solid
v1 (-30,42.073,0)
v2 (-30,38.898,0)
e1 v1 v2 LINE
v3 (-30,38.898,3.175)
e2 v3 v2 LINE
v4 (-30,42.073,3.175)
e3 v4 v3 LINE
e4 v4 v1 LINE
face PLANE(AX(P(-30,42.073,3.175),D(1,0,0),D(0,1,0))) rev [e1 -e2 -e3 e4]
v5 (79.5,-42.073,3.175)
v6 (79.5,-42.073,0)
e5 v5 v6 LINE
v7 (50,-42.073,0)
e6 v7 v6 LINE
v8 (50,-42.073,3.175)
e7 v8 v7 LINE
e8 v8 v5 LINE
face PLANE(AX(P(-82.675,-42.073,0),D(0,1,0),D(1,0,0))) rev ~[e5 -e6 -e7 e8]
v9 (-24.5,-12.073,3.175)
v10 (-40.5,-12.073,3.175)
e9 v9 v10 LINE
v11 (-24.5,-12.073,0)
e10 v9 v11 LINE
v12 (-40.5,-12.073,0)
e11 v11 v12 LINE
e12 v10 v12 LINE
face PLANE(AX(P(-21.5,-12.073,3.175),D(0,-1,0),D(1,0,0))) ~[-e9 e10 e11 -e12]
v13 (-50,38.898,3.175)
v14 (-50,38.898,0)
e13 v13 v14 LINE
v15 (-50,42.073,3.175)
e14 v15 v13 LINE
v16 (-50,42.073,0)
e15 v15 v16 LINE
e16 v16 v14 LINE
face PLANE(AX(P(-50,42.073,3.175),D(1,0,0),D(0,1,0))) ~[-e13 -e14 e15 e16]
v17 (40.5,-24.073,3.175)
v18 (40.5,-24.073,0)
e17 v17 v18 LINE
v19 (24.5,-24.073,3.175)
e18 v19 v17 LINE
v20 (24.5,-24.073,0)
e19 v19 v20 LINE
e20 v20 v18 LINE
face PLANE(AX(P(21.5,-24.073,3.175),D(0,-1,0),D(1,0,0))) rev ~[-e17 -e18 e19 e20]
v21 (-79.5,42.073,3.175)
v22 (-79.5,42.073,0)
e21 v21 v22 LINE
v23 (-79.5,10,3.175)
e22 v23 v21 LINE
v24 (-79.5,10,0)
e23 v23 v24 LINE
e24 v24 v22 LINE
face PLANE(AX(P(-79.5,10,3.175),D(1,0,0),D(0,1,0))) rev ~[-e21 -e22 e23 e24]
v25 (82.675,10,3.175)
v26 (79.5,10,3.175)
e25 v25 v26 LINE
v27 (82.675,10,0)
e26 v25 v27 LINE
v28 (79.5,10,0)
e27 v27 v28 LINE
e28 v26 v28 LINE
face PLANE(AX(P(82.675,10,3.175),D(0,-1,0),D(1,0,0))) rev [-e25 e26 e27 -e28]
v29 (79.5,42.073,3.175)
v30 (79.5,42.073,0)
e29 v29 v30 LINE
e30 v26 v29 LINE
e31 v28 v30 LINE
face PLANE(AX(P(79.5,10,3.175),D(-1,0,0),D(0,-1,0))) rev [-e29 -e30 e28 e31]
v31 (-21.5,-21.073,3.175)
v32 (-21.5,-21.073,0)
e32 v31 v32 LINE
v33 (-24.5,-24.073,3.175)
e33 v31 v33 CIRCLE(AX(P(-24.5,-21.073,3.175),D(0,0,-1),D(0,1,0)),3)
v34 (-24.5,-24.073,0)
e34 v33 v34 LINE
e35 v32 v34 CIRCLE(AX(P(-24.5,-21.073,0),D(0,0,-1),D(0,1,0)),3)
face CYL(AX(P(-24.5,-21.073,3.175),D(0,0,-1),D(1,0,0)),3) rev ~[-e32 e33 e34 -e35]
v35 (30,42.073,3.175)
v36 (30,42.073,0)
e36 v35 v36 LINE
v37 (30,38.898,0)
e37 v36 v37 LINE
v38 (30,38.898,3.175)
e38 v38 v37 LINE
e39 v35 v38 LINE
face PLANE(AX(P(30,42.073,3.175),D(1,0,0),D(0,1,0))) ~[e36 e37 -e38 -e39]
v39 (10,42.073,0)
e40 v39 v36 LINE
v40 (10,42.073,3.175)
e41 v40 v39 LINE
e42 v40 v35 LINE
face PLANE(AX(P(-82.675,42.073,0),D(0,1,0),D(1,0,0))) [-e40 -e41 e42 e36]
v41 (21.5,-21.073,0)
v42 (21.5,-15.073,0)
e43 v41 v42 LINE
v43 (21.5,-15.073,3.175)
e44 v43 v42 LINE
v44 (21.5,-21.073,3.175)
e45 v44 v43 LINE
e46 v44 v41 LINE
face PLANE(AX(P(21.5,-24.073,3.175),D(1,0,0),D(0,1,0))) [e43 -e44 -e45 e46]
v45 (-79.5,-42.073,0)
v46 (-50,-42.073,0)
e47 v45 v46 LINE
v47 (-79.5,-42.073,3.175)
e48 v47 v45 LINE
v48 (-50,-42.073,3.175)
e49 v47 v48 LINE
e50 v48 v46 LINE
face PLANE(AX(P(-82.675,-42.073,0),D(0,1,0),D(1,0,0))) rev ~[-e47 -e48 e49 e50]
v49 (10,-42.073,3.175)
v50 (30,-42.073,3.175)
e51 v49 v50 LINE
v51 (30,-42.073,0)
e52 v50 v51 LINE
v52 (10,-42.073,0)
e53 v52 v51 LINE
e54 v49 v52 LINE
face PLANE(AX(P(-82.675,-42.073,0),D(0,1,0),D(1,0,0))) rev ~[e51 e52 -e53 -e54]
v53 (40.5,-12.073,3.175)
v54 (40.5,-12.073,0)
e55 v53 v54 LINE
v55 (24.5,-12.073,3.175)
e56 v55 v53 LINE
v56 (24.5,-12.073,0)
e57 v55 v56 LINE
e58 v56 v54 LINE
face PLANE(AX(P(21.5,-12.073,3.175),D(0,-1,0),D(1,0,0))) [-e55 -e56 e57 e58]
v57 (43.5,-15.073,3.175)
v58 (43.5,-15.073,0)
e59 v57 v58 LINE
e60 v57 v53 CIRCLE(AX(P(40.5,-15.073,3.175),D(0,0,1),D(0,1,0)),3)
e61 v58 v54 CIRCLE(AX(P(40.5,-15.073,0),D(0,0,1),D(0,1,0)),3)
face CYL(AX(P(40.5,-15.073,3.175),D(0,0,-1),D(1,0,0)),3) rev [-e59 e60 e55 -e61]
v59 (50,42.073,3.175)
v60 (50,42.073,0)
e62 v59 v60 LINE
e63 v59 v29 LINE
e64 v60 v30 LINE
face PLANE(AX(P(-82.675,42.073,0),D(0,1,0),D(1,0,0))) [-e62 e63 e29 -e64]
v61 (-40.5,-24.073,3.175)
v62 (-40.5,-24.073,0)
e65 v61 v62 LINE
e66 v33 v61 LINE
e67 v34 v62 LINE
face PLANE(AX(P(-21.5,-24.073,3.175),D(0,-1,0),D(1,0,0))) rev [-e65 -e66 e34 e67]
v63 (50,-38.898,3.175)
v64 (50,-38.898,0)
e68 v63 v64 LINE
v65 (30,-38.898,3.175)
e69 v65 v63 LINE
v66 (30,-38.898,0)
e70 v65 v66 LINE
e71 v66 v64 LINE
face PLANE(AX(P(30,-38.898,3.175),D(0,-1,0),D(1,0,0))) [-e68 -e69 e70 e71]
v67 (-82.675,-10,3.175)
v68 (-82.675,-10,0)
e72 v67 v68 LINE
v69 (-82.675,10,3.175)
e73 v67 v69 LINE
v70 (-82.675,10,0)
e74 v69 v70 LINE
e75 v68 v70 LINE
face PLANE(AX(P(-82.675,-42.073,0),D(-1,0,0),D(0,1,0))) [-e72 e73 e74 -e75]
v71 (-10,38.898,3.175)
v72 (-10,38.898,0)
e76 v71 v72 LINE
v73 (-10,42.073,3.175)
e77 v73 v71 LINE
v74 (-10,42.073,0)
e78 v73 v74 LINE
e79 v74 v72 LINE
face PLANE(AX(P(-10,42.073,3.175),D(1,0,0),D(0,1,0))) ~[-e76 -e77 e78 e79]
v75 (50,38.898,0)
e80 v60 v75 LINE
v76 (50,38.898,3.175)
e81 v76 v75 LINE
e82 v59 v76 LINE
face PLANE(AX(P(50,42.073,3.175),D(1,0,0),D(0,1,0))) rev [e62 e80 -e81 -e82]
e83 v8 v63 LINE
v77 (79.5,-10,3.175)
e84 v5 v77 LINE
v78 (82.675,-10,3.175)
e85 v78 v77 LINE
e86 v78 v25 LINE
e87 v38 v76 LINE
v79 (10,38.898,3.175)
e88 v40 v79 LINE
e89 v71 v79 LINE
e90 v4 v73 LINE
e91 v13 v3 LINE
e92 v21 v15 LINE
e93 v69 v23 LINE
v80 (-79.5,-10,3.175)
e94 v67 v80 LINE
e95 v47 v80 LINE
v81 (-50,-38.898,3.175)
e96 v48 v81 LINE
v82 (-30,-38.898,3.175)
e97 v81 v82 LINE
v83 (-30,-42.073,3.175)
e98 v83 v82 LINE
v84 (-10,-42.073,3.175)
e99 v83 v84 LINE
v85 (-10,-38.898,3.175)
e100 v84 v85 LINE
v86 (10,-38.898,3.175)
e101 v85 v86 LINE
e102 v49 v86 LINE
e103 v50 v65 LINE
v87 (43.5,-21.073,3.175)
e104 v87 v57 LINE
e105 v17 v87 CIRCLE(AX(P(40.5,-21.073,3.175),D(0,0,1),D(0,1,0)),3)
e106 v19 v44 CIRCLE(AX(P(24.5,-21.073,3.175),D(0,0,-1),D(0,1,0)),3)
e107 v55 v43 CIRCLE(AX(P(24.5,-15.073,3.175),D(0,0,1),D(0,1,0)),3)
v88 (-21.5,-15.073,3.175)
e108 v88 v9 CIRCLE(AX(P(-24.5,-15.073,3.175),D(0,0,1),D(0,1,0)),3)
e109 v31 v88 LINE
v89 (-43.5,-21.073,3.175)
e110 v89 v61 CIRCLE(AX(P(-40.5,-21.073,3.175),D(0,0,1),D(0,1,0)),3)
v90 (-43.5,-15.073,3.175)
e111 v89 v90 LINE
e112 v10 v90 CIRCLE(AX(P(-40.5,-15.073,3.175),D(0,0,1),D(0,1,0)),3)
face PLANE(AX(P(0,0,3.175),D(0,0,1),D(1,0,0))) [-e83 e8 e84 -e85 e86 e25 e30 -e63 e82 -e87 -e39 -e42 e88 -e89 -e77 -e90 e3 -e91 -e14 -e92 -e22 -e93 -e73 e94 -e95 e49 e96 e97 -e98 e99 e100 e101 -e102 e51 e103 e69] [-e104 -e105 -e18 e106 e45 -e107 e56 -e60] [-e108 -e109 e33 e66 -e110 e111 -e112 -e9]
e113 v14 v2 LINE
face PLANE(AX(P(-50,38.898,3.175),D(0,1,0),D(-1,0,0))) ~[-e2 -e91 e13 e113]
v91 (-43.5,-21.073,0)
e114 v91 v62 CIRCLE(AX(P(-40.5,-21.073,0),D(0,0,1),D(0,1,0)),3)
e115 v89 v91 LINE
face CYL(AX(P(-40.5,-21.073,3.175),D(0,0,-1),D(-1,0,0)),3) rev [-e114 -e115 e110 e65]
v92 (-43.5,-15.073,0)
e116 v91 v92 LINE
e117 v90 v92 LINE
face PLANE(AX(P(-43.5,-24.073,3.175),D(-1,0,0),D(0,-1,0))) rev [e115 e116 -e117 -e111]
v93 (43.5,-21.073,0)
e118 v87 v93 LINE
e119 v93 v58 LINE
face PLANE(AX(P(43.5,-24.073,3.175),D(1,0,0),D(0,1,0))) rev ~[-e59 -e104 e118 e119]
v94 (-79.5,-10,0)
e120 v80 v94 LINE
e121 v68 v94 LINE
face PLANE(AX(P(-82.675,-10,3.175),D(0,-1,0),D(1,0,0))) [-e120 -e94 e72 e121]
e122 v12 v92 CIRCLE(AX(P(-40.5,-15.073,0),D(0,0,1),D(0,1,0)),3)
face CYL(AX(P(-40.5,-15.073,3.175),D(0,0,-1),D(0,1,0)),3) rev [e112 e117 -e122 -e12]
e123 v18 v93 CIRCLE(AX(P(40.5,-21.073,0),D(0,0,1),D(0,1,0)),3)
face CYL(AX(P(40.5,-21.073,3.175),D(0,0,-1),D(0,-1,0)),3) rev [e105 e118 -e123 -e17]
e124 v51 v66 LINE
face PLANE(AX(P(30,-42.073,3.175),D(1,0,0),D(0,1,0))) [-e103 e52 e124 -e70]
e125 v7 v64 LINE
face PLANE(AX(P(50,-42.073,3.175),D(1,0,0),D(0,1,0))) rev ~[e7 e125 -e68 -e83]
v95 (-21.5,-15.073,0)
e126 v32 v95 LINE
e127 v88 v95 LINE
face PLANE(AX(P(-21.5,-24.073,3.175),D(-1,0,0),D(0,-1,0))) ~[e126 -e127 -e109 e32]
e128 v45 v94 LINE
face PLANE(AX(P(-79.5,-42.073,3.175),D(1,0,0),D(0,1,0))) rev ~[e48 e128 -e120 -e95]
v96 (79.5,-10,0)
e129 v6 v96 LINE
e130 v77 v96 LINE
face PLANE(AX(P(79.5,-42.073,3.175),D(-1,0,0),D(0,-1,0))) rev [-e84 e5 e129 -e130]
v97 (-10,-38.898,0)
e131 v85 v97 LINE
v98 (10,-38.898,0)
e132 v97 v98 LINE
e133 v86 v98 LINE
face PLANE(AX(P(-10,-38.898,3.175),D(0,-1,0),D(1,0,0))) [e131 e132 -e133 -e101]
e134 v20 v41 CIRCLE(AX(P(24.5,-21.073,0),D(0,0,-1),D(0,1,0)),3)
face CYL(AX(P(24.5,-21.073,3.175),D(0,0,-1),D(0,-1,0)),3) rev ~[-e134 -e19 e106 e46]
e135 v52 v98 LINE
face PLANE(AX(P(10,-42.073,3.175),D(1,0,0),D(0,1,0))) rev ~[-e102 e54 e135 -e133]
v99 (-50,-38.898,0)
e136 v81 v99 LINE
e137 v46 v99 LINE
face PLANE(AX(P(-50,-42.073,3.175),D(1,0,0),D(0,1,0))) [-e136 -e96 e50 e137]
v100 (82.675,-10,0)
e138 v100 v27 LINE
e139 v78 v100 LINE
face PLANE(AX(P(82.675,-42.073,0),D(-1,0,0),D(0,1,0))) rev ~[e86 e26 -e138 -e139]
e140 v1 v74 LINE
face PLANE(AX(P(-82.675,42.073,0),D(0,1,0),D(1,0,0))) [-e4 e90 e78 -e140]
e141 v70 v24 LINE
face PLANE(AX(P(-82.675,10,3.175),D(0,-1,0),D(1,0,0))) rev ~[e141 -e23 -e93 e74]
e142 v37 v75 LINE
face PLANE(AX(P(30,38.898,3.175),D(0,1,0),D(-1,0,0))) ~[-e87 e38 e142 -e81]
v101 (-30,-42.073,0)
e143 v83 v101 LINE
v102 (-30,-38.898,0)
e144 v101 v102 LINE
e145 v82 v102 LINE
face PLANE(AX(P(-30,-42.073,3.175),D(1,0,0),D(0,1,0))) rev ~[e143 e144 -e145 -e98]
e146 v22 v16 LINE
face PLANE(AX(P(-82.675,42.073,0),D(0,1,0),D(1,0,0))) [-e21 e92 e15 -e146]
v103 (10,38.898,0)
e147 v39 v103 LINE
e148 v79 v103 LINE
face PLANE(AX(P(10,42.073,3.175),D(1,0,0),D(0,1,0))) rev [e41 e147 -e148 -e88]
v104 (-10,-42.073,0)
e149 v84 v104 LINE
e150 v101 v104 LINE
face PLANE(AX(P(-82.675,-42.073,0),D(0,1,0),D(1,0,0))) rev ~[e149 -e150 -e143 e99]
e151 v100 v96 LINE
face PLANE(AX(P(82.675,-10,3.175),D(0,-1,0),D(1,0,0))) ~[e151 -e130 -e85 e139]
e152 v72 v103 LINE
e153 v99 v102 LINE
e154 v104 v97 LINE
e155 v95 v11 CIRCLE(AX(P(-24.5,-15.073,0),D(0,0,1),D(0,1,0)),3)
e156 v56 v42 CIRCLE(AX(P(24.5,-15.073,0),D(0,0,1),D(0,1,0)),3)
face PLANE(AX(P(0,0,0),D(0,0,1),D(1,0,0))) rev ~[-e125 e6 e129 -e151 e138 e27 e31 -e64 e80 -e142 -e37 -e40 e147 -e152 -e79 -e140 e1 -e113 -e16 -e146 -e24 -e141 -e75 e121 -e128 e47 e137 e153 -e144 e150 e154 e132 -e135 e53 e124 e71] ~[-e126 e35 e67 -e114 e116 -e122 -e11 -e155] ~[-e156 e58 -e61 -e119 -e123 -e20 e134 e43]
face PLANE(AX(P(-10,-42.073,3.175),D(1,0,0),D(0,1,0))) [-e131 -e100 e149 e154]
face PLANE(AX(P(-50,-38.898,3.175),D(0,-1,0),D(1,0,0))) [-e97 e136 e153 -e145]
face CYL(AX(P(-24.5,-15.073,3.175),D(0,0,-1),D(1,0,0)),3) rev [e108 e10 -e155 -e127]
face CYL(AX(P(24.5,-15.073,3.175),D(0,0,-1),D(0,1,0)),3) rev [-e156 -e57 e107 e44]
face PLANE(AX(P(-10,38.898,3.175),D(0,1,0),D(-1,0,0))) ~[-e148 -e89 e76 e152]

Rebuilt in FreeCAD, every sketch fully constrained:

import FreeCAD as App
import Part
import Sketcher

V = App.Vector
Q = App.Units.Quantity


def edges_at(feature, points):
    """Names of the edges that pass closest to the given points."""
    edges = feature.Shape.Edges
    near = lambda p: min(range(len(edges)), key=lambda i: edges[i].distToShape(Part.Vertex(*p))[0])
    return sorted({f"Edge{near(p) + 1}" for p in points})


def add_polygon(sketch, points):
    """Adds a closed chain of lines whose ends are joined by coincident constraints."""
    first, n = sketch.GeometryCount, len(points)
    for a, b in zip(points, points[1:] + points[:1]):
        sketch.addGeometry(Part.LineSegment(App.Vector(*a, 0), App.Vector(*b, 0)), False)
    for i in range(n):
        sketch.addConstraint(Sketcher.Constraint("Coincident", first + i, 2, first + (i + 1) % n, 1))

doc = App.newDocument("Part")
body = doc.addObject("PartDesign::Body", "Body")

# Sketch on XY plane
sketch1 = body.newObject("Sketcher::SketchObject", "Sketch")
sketch1.AttachmentSupport = (doc.getObject("XY_Plane"), [""])
sketch1.MapMode = "FlatFace"
add_polygon(sketch1, [(-83, 42), (-83, -42), (83, -42), (83, 42)])  # lines 0-3
sketch1.addConstraint([
    Sketcher.Constraint("Vertical", 0),
    Sketcher.Constraint("Horizontal", 1),
    Sketcher.Constraint("Vertical", 2),
    Sketcher.Constraint("Horizontal", 3),
    Sketcher.Constraint("Symmetric", 0, 2, 2, 2, -1, 1),
    Sketcher.Constraint("DistanceX", 1, 1, 1, 2, Q("165.35 mm")),
    Sketcher.Constraint("DistanceY", 0, 2, 0, 1, Q("84.146 mm")),
])
pad1 = body.newObject("PartDesign::Pad", "Pad")
pad1.Profile = sketch1
pad1.Length = 3.175

# Sketch on XY plane
sketch2 = body.newObject("Sketcher::SketchObject", "Sketch001")
sketch2.AttachmentSupport = (doc.getObject("XY_Plane"), [""])
sketch2.MapMode = "FlatFace"
sketch2.AttachmentOffset = App.Placement(V(0, 0, 3.175), App.Rotation())
add_polygon(sketch2, [(-82.7, -10), (-82.7, -42.1), (-79.5, -42.1), (-79.5, -10)])  # lines 0-3
add_polygon(sketch2, [(-82.7, 42.1), (-82.7, 10), (-79.5, 10), (-79.5, 42.1)])  # lines 4-7
sketch2.addConstraint([
    Sketcher.Constraint("Vertical", 0),
    Sketcher.Constraint("Horizontal", 1),
    Sketcher.Constraint("Vertical", 2),
    Sketcher.Constraint("Horizontal", 3),
    Sketcher.Constraint("Vertical", 4),
    Sketcher.Constraint("Horizontal", 5),
    Sketcher.Constraint("Vertical", 6),
    Sketcher.Constraint("Horizontal", 7),
    Sketcher.Constraint("Symmetric", 3, 2, 4, 2, -1),
    Sketcher.Constraint("Symmetric", 1, 2, 6, 2, -1),
    Sketcher.Constraint("DistanceY", 2, 2, -1, 1, Q("10 mm")),
    Sketcher.Constraint("DistanceX", 1, 2, -1, 1, Q("79.5 mm")),
    Sketcher.Constraint("DistanceX", 1, 1, 1, 2, Q("3.175 mm")),
    Sketcher.Constraint("DistanceY", 0, 2, 0, 1, Q("32.073 mm")),
])
pocket1 = body.newObject("PartDesign::Pocket", "Pocket")
pocket1.Profile = sketch2
pocket1.Type = "ThroughAll"
doc.recompute()

mirrored = body.newObject("PartDesign::Mirrored", "Mirrored")
mirrored.Originals = [pocket1]
mirrored.MirrorPlane = (doc.getObject("YZ_Plane"), [""])
body.Tip = mirrored

# Sketch on XY plane
sketch3 = body.newObject("Sketcher::SketchObject", "Sketch002")
sketch3.AttachmentSupport = (doc.getObject("XY_Plane"), [""])
sketch3.MapMode = "FlatFace"
sketch3.AttachmentOffset = App.Placement(V(0, 0, 3.175), App.Rotation())
add_polygon(sketch3, [(-10, -38.9), (-10, -42.1), (10, -42.1), (10, -38.9)])  # lines 0-3
add_polygon(sketch3, [(30, -38.9), (30, -42.1), (50, -42.1), (50, -38.9)])  # lines 4-7
add_polygon(sketch3, [(-50, -38.9), (-50, -42.1), (-30, -42.1), (-30, -38.9)])  # lines 8-11
sketch3.addConstraint([
    Sketcher.Constraint("Vertical", 0),
    Sketcher.Constraint("Horizontal", 1),
    Sketcher.Constraint("Vertical", 2),
    Sketcher.Constraint("Horizontal", 3),
    Sketcher.Constraint("Vertical", 4),
    Sketcher.Constraint("Horizontal", 5),
    Sketcher.Constraint("Vertical", 6),
    Sketcher.Constraint("Horizontal", 7),
    Sketcher.Constraint("Vertical", 8),
    Sketcher.Constraint("Horizontal", 9),
    Sketcher.Constraint("Vertical", 10),
    Sketcher.Constraint("Horizontal", 11),
    Sketcher.Constraint("Symmetric", 5, 2, 8, 2, -2),
    Sketcher.Constraint("Symmetric", 7, 2, 10, 2, -2),
    Sketcher.Constraint("Horizontal", 1, 2, 4, 2),
    Sketcher.Constraint("Horizontal", 3, 2, 6, 2),
    Sketcher.Constraint("Equal", 3, 5),
    Sketcher.Constraint("DistanceX", 1, 1, 1, 2, Q("20 mm")),
    Sketcher.Constraint("DistanceX", 0, 2, -1, 1, Q("10 mm")),
    Sketcher.Constraint("DistanceX", -1, 1, 4, 2, Q("30 mm")),
    Sketcher.Constraint("DistanceY", 0, 2, 0, 1, Q("3.175 mm")),
    Sketcher.Constraint("DistanceY", 0, 2, -1, 1, Q("42.073 mm")),
])
pocket2 = body.newObject("PartDesign::Pocket", "Pocket001")
pocket2.Profile = sketch3
pocket2.Type = "ThroughAll"
doc.recompute()

mirrored2 = body.newObject("PartDesign::Mirrored", "Mirrored001")
mirrored2.Originals = [pocket2]
mirrored2.MirrorPlane = (doc.getObject("XZ_Plane"), [""])
body.Tip = mirrored2

# Sketch on XY plane
sketch4 = body.newObject("Sketcher::SketchObject", "Sketch003")
sketch4.AttachmentSupport = (doc.getObject("XY_Plane"), [""])
sketch4.MapMode = "FlatFace"
sketch4.AttachmentOffset = App.Placement(V(0, 0, 3.175), App.Rotation())
add_polygon(sketch4, [(22, -12), (22, -24), (44, -24), (44, -12)])  # lines 0-3
sketch4.addConstraint([
    Sketcher.Constraint("Vertical", 0),
    Sketcher.Constraint("Horizontal", 1),
    Sketcher.Constraint("Vertical", 2),
    Sketcher.Constraint("Horizontal", 3),
    Sketcher.Constraint("DistanceX", 1, 1, 1, 2, Q("22 mm")),
    Sketcher.Constraint("DistanceY", 0, 2, 0, 1, Q("12 mm")),
    Sketcher.Constraint("DistanceX", -1, 1, 0, 2, Q("21.5 mm")),
    Sketcher.Constraint("DistanceY", 0, 2, -1, 1, Q("24.073 mm")),
])
pocket3 = body.newObject("PartDesign::Pocket", "Pocket002")
pocket3.Profile = sketch4
pocket3.Type = "ThroughAll"
doc.recompute()

fillet = body.newObject("PartDesign::Fillet", "Fillet")
fillet.Base = (pocket3, edges_at(pocket3, [
    (21.5, -24.073, 1.587),
    (21.5, -12.073, 1.587),
    (43.5, -12.073, 1.587),
    (43.5, -24.073, 1.587),
]))
fillet.Radius = 3
doc.recompute()

mirrored3 = body.newObject("PartDesign::Mirrored", "Mirrored002")
mirrored3.Originals = [pocket3]
mirrored3.MirrorPlane = (doc.getObject("YZ_Plane"), [""])
body.Tip = mirrored3
doc.recompute()

fillet2 = body.newObject("PartDesign::Fillet", "Fillet001")
fillet2.Base = (mirrored3, edges_at(mirrored3, [
    (-21.5, -24.073, 1.587),
    (-21.5, -12.073, 1.587),
    (-43.5, -12.073, 1.587),
    (-43.5, -24.073, 1.587),
]))
fillet2.Radius = 3

doc.recompute()
